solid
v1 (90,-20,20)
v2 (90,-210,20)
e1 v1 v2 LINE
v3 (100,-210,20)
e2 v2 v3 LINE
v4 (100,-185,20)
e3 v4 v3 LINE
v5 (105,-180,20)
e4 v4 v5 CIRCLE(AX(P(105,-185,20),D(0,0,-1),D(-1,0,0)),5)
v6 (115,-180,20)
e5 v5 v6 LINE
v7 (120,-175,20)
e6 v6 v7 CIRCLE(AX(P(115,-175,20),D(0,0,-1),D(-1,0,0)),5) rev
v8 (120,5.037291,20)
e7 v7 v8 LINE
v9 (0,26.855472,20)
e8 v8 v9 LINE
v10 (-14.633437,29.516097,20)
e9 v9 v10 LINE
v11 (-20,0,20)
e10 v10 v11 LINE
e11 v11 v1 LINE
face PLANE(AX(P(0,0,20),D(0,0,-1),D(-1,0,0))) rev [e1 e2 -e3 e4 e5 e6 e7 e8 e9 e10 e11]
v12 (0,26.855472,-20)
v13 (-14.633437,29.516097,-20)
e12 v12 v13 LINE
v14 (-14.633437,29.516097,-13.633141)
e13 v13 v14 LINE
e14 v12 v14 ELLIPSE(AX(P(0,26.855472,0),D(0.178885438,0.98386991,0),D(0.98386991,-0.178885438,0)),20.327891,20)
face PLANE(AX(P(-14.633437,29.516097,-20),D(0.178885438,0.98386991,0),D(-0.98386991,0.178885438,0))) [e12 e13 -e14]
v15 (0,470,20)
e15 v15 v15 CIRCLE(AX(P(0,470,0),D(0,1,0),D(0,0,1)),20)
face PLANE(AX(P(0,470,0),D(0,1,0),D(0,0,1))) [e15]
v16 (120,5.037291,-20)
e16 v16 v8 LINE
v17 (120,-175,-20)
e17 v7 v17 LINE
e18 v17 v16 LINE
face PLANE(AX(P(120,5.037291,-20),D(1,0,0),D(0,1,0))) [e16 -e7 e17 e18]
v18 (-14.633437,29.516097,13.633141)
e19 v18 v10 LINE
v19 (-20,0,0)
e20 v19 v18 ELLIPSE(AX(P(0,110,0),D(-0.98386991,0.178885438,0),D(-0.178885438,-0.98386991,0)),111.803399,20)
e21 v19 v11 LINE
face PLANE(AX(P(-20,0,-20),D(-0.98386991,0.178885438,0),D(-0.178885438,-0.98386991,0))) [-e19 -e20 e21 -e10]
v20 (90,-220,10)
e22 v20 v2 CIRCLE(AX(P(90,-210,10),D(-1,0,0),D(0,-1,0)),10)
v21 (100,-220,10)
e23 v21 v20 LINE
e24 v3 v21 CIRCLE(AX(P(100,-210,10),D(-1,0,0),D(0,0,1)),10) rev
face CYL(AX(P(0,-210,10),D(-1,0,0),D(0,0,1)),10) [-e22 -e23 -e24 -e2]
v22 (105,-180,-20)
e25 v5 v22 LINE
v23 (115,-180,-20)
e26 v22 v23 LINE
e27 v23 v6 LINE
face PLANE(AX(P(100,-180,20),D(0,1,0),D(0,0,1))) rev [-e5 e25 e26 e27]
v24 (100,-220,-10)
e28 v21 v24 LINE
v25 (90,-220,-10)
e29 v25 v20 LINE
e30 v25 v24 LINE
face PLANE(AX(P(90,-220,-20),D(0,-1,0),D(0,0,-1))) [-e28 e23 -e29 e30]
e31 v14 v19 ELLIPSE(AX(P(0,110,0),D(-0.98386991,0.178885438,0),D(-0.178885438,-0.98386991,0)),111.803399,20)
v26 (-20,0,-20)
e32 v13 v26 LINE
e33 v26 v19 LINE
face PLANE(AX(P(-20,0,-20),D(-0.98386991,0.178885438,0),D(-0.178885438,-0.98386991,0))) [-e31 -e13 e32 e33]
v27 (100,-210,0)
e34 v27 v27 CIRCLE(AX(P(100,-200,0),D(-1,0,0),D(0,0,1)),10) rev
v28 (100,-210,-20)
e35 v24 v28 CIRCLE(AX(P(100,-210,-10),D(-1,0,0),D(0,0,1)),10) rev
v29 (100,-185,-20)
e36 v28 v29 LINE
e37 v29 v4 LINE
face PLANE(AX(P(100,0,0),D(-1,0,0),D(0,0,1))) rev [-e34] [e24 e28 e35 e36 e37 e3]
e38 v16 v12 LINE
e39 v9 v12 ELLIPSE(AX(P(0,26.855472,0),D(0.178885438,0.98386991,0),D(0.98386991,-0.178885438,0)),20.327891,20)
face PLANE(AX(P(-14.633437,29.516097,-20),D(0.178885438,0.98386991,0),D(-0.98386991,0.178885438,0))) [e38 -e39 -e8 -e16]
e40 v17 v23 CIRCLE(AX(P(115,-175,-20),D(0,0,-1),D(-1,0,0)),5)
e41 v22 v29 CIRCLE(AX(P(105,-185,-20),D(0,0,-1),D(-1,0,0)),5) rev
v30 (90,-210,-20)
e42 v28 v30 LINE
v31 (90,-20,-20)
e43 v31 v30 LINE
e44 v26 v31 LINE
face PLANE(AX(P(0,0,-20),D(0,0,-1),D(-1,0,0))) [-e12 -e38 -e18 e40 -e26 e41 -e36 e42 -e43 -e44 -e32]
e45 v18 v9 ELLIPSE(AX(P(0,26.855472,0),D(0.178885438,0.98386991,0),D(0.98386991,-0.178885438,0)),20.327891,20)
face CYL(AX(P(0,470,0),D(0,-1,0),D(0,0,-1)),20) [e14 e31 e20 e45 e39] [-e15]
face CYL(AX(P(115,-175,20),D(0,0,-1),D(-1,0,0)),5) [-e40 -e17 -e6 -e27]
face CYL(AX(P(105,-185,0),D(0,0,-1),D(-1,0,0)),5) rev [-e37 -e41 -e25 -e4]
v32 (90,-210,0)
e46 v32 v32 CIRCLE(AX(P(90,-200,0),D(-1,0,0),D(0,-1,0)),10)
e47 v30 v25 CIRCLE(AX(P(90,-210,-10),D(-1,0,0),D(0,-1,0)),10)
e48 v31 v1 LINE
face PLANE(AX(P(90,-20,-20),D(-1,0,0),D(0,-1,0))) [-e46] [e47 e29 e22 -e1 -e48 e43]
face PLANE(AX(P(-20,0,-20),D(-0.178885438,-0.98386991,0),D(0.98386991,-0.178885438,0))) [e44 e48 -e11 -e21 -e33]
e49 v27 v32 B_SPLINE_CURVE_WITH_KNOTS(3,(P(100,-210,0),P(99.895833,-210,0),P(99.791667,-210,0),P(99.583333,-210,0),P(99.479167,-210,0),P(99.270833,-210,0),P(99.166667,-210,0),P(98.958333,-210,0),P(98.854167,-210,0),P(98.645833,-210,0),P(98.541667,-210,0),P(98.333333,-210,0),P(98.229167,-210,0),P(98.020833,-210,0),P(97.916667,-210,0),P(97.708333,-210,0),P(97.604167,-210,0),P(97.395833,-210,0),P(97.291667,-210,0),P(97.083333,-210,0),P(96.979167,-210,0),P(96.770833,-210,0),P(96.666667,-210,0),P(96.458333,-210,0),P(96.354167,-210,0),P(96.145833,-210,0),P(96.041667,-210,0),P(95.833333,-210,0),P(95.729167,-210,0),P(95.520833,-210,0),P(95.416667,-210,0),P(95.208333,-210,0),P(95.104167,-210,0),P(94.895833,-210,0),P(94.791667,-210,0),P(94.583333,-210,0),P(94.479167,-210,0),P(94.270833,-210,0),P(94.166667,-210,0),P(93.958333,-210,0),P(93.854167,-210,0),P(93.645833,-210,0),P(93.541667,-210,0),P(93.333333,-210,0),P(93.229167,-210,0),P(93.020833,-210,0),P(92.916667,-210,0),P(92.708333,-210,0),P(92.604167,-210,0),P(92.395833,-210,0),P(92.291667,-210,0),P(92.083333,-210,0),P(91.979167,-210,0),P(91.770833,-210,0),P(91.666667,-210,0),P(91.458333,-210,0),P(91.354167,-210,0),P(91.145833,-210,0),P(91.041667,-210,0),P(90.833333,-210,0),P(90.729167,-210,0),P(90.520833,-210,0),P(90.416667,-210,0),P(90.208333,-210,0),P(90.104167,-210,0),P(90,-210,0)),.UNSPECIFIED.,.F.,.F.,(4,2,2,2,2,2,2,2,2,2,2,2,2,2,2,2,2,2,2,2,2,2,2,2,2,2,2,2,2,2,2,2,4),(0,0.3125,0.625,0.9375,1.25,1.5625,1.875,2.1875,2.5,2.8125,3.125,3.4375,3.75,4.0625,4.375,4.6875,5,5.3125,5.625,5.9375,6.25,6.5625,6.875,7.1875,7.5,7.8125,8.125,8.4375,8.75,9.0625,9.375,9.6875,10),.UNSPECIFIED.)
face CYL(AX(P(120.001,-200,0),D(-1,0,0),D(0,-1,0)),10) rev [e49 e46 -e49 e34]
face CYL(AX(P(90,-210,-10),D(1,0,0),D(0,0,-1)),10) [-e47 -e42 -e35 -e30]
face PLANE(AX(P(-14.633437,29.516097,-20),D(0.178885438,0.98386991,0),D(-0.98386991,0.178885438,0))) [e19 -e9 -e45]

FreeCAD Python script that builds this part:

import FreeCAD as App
import Part
import Sketcher

V = App.Vector


def edges_at(feature, points):
    """Names of the edges that pass closest to the given points."""
    edges = feature.Shape.Edges
    near = lambda p: min(range(len(edges)), key=lambda i: edges[i].distToShape(Part.Vertex(*p))[0])
    return sorted({f"Edge{near(p) + 1}" for p in points})


def add_polygon(sketch, points):
    """Adds a closed chain of lines whose ends are joined by coincident constraints."""
    first, n = sketch.GeometryCount, len(points)
    for a, b in zip(points, points[1:] + points[:1]):
        sketch.addGeometry(Part.LineSegment(App.Vector(*a, 0), App.Vector(*b, 0)), False)
    for i in range(n):
        sketch.addConstraint(Sketcher.Constraint("Coincident", first + i, 2, first + (i + 1) % n, 1))

doc = App.newDocument("Part")
body = doc.addObject("PartDesign::Body", "Body")

# Sketch on XZ plane
sketch1 = body.newObject("Sketcher::SketchObject", "Sketch")
sketch1.AttachmentSupport = (doc.getObject("XZ_Plane"), [""])
sketch1.MapMode = "FlatFace"
sketch1.addGeometry(Part.Circle(V(0, 0, 0), V(0, 0, 1), 20), False)
sketch1.addConstraint([
    Sketcher.Constraint("Coincident", 0, 3, -1, 1),
    Sketcher.Constraint("Diameter", 0, 40.0),
])
pad1 = body.newObject("PartDesign::Pad", "Pad")
pad1.Profile = sketch1
pad1.Length = 470
pad1.Reversed = True

# Sketch on XY plane
sketch2 = body.newObject("Sketcher::SketchObject", "Sketch001")
sketch2.AttachmentSupport = (doc.getObject("XY_Plane"), [""])
sketch2.MapMode = "FlatFace"
add_polygon(sketch2, [(-20, 0), (90, -20), (90, -220), (120, -220), (120, 5), (-15, 30)])  # lines 0-5
sketch2.addConstraint([
    Sketcher.Constraint("Vertical", 1),
    Sketcher.Constraint("Horizontal", 2),
    Sketcher.Constraint("Vertical", 3),
    Sketcher.Constraint("PointOnObject", 5, 2, -1),
    Sketcher.Constraint("Parallel", 0, 4),
    Sketcher.Constraint("Perpendicular", 4, 5),
    Sketcher.Constraint("DistanceX", 2, 1, 2, 2, 30.0),
    Sketcher.Constraint("DistanceY", 1, 2, 1, 1, 200.0),
    Sketcher.Constraint("Distance", 5, 30.0),
    Sketcher.Constraint("DistanceX", -1, 1, 0, 2, 90.0),
    Sketcher.Constraint("DistanceY", 0, 2, -1, 1, 20.0),
    Sketcher.Constraint("DistanceX", 5, 2, -1, 1, 20.0),
])
pad2 = body.newObject("PartDesign::Pad", "Pad001")
pad2.Profile = sketch2
pad2.Type = "TwoLengths"
pad2.Length = 20
pad2.Length2 = 20

# Sketch on YZ plane
sketch3 = body.newObject("Sketcher::SketchObject", "Sketch002")
sketch3.AttachmentSupport = (doc.getObject("YZ_Plane"), [""])
sketch3.MapMode = "FlatFace"
sketch3.AttachmentOffset = App.Placement(V(0, 0, 90), App.Rotation())
sketch3.addGeometry(Part.Circle(V(-200, 0, 0), V(0, 0, 1), 10), False)
sketch3.addConstraint([
    Sketcher.Constraint("PointOnObject", 0, 3, -1),
    Sketcher.Constraint("Diameter", 0, 20.0),
    Sketcher.Constraint("DistanceX", 0, 3, -1, 1, 200.0),
])
pocket1 = body.newObject("PartDesign::Pocket", "Pocket")
pocket1.Profile = sketch3
pocket1.Type = "UpToFirst"
pocket1.Reversed = True

# Sketch on YZ plane
sketch4 = body.newObject("Sketcher::SketchObject", "Sketch003")
sketch4.AttachmentSupport = (doc.getObject("YZ_Plane"), [""])
sketch4.MapMode = "FlatFace"
sketch4.AttachmentOffset = App.Placement(V(0, 0, 120), App.Rotation())
add_polygon(sketch4, [(-180, 20), (-220, 20), (-220, -20), (-180, -20)])  # lines 0-3
sketch4.addConstraint([
    Sketcher.Constraint("Horizontal", 0),
    Sketcher.Constraint("Vertical", 1),
    Sketcher.Constraint("Horizontal", 2),
    Sketcher.Constraint("Vertical", 3),
    Sketcher.Constraint("Equal", 2, 1),
    Sketcher.Constraint("DistanceX", 0, 2, 0, 1, 40.0),
    Sketcher.Constraint("DistanceX", 0, 2, -1, 1, 220.0),
    Sketcher.Constraint("DistanceY", -1, 1, 0, 2, 20.0),
])
pocket2 = body.newObject("PartDesign::Pocket", "Pocket001")
pocket2.Profile = sketch4
pocket2.Length = 20
doc.recompute()

fillet = body.newObject("PartDesign::Fillet", "Fillet")
fillet.Base = (pocket2, edges_at(pocket2, [(120, -180, 0), (100, -180, 0)]))
fillet.Radius = 5
doc.recompute()

fillet2 = body.newObject("PartDesign::Fillet", "Fillet001")
fillet2.Base = (fillet, edges_at(fillet, [(95, -220, -20), (95, -220, 20)]))
fillet2.Radius = 10

doc.recompute()
